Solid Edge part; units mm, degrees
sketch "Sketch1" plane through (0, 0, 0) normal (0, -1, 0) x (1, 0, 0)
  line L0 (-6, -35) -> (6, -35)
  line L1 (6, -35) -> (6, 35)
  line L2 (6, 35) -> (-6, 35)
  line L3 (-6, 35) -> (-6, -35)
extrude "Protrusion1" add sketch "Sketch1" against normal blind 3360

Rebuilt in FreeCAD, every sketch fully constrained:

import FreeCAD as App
import Part
import Sketcher

V = App.Vector
Q = App.Units.Quantity

doc = App.newDocument("Part")
body = doc.addObject("PartDesign::Body", "Body")

sketch1 = doc.addObject("Sketcher::SketchObject", "Sketch")
body.addObject(sketch1)
sketch1.AttachmentSupport = (doc.XZ_Plane, [""])
sketch1.MapMode = "FlatFace"
sketch1.addGeometry([
    Part.LineSegment(V(-6, 35, 0), V(-6, -35, 0)),
    Part.LineSegment(V(-6, -35, 0), V(6, -35, 0)),
    Part.LineSegment(V(6, -35, 0), V(6, 35, 0)),
    Part.LineSegment(V(6, 35, 0), V(-6, 35, 0)),
], False)
sketch1.addConstraint([
    Sketcher.Constraint("Coincident", 0, 2, 1, 1),
    Sketcher.Constraint("Coincident", 1, 2, 2, 1),
    Sketcher.Constraint("Coincident", 2, 2, 3, 1),
    Sketcher.Constraint("Coincident", 3, 2, 0, 1),
    Sketcher.Constraint("Vertical", 0),
    Sketcher.Constraint("Horizontal", 1),
    Sketcher.Constraint("Vertical", 2),
    Sketcher.Constraint("Horizontal", 3),
    Sketcher.Constraint("Symmetric", 0, 2, 2, 2, -1, 1),
    Sketcher.Constraint("DistanceX", 1, 1, 1, 2, Q("12 mm")),
    Sketcher.Constraint("DistanceY", 0, 2, 0, 1, Q("70 mm")),
])
pad1 = doc.addObject("PartDesign::Pad", "Pad")
body.addObject(pad1)
pad1.Profile = sketch1
pad1.Length = 3360
pad1.Reversed = True

doc.recompute()
